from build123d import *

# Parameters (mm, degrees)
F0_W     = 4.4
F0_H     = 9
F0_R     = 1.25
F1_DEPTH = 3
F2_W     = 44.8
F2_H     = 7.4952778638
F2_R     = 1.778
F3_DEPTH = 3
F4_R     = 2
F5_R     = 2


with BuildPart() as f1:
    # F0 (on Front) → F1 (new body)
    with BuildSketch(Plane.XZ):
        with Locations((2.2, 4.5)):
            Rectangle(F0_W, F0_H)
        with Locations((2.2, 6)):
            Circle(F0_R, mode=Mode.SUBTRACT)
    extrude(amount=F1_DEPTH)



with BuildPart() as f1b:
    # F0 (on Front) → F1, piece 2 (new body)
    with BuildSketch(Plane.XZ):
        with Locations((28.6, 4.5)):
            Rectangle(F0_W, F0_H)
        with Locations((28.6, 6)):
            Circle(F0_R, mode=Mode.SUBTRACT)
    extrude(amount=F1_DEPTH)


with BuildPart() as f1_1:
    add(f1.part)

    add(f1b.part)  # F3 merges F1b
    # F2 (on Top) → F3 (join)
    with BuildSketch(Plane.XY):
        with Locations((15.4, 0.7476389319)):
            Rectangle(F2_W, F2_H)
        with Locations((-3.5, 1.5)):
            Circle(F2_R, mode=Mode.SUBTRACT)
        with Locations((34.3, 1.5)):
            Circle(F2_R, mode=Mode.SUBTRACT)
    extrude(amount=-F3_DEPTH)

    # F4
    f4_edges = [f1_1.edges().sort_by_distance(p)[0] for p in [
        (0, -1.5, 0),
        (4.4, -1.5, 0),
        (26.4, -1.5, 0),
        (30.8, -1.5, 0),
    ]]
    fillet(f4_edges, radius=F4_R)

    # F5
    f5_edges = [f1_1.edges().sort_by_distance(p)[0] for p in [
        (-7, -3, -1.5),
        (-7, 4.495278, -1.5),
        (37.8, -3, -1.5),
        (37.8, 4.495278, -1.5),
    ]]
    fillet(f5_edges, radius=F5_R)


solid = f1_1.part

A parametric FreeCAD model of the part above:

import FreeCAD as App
import Part
import Sketcher
from FreeCAD import Vector


def edges_at(feature, points):
    """Names of the edges that pass closest to the given points."""
    edges = feature.Shape.Edges
    near = lambda p: min(range(len(edges)), key=lambda i: edges[i].distToShape(Part.Vertex(*p))[0])
    return sorted({f"Edge{near(p) + 1}" for p in points})


def add_polygon(sketch, points):
    """Adds a closed chain of lines whose ends are joined by coincident constraints."""
    first, n = sketch.GeometryCount, len(points)
    for a, b in zip(points, points[1:] + points[:1]):
        sketch.addGeometry(Part.LineSegment(App.Vector(*a, 0), App.Vector(*b, 0)), False)
    for i in range(n):
        sketch.addConstraint(Sketcher.Constraint("Coincident", first + i, 2, first + (i + 1) % n, 1))

doc = App.newDocument("Part")
body = doc.addObject("PartDesign::Body", "Body")

# Sketch on XZ plane
sketch1 = body.newObject("Sketcher::SketchObject", "Sketch")
sketch1.AttachmentSupport = (doc.getObject("XZ_Plane"), [""])
sketch1.MapMode = "FlatFace"
add_polygon(sketch1, [(0, 9), (0, 0), (4.4, 0), (4.4, 9)])  # lines 0-3
sketch1.addGeometry(Part.Circle(Vector(2.2, 6, 0), Vector(0, 0, 1), 1.25), False)  # 4
sketch1.addConstraint(Sketcher.Constraint("Vertical", 0))
sketch1.addConstraint(Sketcher.Constraint("Horizontal", 1))
sketch1.addConstraint(Sketcher.Constraint("Vertical", 2))
sketch1.addConstraint(Sketcher.Constraint("Horizontal", 3))
sketch1.addConstraint(Sketcher.Constraint("Coincident", 0, 2, -1, 1))
sketch1.addConstraint(Sketcher.Constraint("Diameter", 4, 2.5))
sketch1.addConstraint(Sketcher.Constraint("DistanceY", 0, 2, 0, 1, 9.0))
sketch1.addConstraint(Sketcher.Constraint("DistanceX", 1, 1, 1, 2, 4.4))
sketch1.addConstraint(Sketcher.Constraint("DistanceY", -1, 1, 4, 3, 6.0))
sketch1.addConstraint(Sketcher.Constraint("DistanceX", -1, 1, 4, 3, 2.2))
pad1 = body.newObject("PartDesign::Pad", "Pad")
pad1.Profile = sketch1
pad1.Length = 3
body2 = doc.addObject("PartDesign::Body", "Body001")

# Sketch on XZ plane
sketch2 = body2.newObject("Sketcher::SketchObject", "Sketch001")
sketch2.AttachmentSupport = (doc.getObject("XZ_Plane001"), [""])
sketch2.MapMode = "FlatFace"
add_polygon(sketch2, [(26.4, 9), (26.4, 0), (30.8, 0), (30.8, 9)])  # lines 0-3
sketch2.addGeometry(Part.Circle(Vector(28.6, 6, 0), Vector(0, 0, 1), 1.25), False)  # 4
sketch2.addConstraint(Sketcher.Constraint("Vertical", 0))
sketch2.addConstraint(Sketcher.Constraint("Horizontal", 1))
sketch2.addConstraint(Sketcher.Constraint("Vertical", 2))
sketch2.addConstraint(Sketcher.Constraint("Horizontal", 3))
sketch2.addConstraint(Sketcher.Constraint("PointOnObject", 0, 2, -1))
sketch2.addConstraint(Sketcher.Constraint("Diameter", 4, 2.5))
sketch2.addConstraint(Sketcher.Constraint("DistanceY", 0, 2, 0, 1, 9.0))
sketch2.addConstraint(Sketcher.Constraint("DistanceX", 1, 1, 1, 2, 4.4))
sketch2.addConstraint(Sketcher.Constraint("DistanceY", -1, 1, 4, 3, 6.0))
sketch2.addConstraint(Sketcher.Constraint("DistanceX", -1, 1, 4, 3, 28.6))
sketch2.addConstraint(Sketcher.Constraint("DistanceX", -1, 1, 0, 2, 26.4))
pad2 = body2.newObject("PartDesign::Pad", "Pad001")
pad2.Profile = sketch2
pad2.Length = 3
body.AllowCompound = True
doc.recompute()

boolean = body.newObject("PartDesign::Boolean", "Boolean")
boolean.Type = "Fuse"
boolean.addObjects([body2])

# Sketch on XY plane
sketch3 = body.newObject("Sketcher::SketchObject", "Sketch002")
sketch3.AttachmentSupport = (doc.getObject("XY_Plane"), [""])
sketch3.MapMode = "FlatFace"
add_polygon(sketch3, [(-7, 4.495278), (-7, -3), (37.8, -3), (37.8, 4.495278)])  # lines 0-3
sketch3.addGeometry(Part.Circle(Vector(-3.5, 1.5, 0), Vector(0, 0, 1), 1.778), False)  # 4
sketch3.addGeometry(Part.Circle(Vector(34.3, 1.5, 0), Vector(0, 0, 1), 1.778), False)  # 5
sketch3.addConstraint(Sketcher.Constraint("Vertical", 0))
sketch3.addConstraint(Sketcher.Constraint("Horizontal", 1))
sketch3.addConstraint(Sketcher.Constraint("Vertical", 2))
sketch3.addConstraint(Sketcher.Constraint("Horizontal", 3))
sketch3.addConstraint(Sketcher.Constraint("Equal", 4, 5))
sketch3.addConstraint(Sketcher.Constraint("Horizontal", 4, 3, 5, 3))
sketch3.addConstraint(Sketcher.Constraint("Diameter", 4, 3.556))
sketch3.addConstraint(Sketcher.Constraint("DistanceX", 1, 1, 1, 2, 44.8))
sketch3.addConstraint(Sketcher.Constraint("DistanceX", 0, 2, -1, 1, 7.0))
sketch3.addConstraint(Sketcher.Constraint("DistanceY", 0, 2, -1, 1, 3.0))
sketch3.addConstraint(Sketcher.Constraint("DistanceX", 4, 3, -1, 1, 3.5))
sketch3.addConstraint(Sketcher.Constraint("DistanceY", -1, 1, 4, 3, 1.5))
sketch3.addConstraint(Sketcher.Constraint("DistanceX", -1, 1, 5, 3, 34.3))
sketch3.addConstraint(Sketcher.Constraint("DistanceY", 0, 2, 0, 1, 7.495278))
pad3 = body.newObject("PartDesign::Pad", "Pad002")
pad3.Profile = sketch3
pad3.Length = 3
pad3.Reversed = True
doc.recompute()

fillet = body.newObject("PartDesign::Fillet", "Fillet")
fillet.Base = (pad3, edges_at(pad3, [
    (0, -1.5, 0),
    (4.4, -1.5, 0),
    (26.4, -1.5, 0),
    (30.8, -1.5, 0),
]))
fillet.Radius = 2
doc.recompute()

fillet2 = body.newObject("PartDesign::Fillet", "Fillet001")
fillet2.Base = (fillet, edges_at(fillet, [
    (-7, -3, -1.5),
    (-7, 4.495, -1.5),
    (37.8, -3, -1.5),
    (37.8, 4.495, -1.5),
]))
fillet2.Radius = 2

doc.recompute()
